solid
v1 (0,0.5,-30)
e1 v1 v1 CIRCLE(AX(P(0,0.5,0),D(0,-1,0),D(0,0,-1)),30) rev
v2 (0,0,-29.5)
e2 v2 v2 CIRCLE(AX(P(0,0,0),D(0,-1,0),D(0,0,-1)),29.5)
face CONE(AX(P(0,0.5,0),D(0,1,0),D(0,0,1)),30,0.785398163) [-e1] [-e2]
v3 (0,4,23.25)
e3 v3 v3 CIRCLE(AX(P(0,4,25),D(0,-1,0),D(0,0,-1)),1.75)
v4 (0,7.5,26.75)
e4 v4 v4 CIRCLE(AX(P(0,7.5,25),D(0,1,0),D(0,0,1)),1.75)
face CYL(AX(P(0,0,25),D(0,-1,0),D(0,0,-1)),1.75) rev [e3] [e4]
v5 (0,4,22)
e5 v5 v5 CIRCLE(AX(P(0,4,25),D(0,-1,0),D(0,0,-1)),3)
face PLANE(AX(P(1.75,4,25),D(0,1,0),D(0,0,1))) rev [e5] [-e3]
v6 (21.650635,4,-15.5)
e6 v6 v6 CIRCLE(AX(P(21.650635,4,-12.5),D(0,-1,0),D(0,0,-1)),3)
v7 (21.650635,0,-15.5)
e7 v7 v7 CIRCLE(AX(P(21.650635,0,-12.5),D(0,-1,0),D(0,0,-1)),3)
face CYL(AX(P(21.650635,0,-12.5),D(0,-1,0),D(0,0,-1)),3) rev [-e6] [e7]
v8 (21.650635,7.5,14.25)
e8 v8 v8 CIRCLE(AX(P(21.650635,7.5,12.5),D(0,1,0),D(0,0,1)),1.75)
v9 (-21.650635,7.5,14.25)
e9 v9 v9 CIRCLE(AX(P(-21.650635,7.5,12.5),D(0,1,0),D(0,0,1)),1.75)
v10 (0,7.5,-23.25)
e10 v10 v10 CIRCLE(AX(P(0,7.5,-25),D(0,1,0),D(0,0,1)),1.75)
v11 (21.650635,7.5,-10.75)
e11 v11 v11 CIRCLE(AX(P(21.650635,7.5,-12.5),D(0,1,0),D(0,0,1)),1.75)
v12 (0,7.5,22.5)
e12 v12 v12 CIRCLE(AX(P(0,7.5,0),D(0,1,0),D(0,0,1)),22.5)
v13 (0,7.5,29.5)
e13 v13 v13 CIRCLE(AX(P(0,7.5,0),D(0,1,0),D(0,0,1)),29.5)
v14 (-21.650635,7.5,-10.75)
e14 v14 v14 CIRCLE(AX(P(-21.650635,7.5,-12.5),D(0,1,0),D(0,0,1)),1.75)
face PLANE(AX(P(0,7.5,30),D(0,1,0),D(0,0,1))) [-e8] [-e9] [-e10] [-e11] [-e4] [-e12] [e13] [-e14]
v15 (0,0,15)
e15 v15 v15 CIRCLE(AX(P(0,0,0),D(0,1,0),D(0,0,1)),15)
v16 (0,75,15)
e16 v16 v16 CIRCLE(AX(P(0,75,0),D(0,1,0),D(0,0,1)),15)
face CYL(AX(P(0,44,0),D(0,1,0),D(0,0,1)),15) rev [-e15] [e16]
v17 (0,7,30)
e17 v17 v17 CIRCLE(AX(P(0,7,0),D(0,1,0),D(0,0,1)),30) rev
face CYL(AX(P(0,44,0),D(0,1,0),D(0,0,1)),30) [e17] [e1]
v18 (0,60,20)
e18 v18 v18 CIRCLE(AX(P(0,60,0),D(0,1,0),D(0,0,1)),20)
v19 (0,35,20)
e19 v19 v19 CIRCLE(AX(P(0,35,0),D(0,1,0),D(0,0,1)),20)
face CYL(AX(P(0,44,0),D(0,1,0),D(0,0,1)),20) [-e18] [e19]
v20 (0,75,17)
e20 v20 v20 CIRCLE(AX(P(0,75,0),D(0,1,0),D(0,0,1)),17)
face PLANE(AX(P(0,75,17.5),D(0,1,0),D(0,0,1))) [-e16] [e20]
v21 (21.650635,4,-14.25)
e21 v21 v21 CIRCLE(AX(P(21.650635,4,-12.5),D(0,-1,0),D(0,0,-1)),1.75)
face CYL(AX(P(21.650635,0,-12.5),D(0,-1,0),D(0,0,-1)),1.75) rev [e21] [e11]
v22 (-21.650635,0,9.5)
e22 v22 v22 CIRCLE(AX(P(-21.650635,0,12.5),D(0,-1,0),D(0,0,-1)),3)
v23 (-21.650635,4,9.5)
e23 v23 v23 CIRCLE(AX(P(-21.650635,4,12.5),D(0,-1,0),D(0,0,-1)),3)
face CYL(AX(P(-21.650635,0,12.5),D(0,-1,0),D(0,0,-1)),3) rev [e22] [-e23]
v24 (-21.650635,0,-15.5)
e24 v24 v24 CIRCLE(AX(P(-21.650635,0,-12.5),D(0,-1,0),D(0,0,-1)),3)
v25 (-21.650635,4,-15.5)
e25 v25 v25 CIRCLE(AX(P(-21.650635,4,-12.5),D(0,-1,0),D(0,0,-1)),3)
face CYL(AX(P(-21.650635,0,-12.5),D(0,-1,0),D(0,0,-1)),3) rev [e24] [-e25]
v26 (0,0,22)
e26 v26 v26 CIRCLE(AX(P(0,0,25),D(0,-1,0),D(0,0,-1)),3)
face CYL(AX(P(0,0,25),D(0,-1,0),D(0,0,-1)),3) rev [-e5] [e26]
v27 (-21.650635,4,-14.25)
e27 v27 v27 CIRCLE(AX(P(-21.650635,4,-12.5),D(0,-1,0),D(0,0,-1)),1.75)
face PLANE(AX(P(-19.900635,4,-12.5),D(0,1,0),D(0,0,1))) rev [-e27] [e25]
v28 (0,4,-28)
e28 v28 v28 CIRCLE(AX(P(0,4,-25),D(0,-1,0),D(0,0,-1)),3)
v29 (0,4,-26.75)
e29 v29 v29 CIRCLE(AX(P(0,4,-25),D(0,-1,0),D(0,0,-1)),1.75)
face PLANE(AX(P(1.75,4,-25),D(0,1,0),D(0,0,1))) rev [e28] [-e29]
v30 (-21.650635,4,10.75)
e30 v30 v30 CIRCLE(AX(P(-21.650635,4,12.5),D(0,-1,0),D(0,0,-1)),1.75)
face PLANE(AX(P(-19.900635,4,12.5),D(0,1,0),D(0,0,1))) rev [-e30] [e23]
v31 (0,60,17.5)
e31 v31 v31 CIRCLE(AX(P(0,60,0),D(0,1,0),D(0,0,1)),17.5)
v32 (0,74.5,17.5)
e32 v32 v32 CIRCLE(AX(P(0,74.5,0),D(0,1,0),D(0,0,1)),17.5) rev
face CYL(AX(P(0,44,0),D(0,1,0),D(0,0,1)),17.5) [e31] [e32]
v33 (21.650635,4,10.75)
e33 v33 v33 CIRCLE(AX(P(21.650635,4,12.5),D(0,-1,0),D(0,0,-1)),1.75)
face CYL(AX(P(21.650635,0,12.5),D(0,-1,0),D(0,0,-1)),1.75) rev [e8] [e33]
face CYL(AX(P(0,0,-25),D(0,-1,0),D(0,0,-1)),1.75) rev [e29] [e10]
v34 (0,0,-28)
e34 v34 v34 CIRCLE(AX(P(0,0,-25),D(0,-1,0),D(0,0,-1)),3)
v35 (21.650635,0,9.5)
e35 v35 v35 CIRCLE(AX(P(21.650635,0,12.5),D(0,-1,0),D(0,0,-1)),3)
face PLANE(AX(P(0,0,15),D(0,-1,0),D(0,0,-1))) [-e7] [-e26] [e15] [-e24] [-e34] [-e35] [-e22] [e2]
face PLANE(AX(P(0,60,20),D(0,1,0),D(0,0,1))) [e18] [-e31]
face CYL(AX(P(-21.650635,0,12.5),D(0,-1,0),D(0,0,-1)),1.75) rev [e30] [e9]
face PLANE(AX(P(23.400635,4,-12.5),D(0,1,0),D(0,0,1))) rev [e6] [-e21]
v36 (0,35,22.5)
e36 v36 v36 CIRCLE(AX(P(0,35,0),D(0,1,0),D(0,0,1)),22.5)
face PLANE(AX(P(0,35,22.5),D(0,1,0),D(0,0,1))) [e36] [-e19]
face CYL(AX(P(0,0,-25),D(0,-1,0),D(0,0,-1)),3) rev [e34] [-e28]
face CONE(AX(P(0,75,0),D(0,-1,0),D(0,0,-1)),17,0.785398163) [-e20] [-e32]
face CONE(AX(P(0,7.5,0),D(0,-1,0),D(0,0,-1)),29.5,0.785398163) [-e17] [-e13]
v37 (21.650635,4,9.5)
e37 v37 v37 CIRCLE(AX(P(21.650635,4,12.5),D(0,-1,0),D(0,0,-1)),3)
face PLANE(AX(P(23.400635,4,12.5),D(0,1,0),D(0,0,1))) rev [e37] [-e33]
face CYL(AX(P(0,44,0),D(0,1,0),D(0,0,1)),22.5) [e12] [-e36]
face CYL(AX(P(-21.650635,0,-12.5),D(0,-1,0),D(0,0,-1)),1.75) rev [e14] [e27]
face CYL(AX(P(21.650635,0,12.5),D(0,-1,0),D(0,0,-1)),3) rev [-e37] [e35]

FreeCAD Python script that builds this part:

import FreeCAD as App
import Part
import Sketcher
Q = App.Units.Quantity


def edges_at(feature, points):
    """Names of the edges that pass closest to the given points."""
    edges = feature.Shape.Edges
    near = lambda p: min(range(len(edges)), key=lambda i: edges[i].distToShape(Part.Vertex(*p))[0])
    return sorted({f"Edge{near(p) + 1}" for p in points})

doc = App.newDocument("Part")
body = doc.addObject("PartDesign::Body", "Body")

# Sketch on YZ plane
sketch1 = body.newObject("Sketcher::SketchObject", "Sketch")
sketch1.AttachmentSupport = (doc.getObject("YZ_Plane"), [""])
sketch1.MapMode = "FlatFace"
sketch1.addGeometry(Part.LineSegment(App.Vector(0, 15, 0), App.Vector(75, 15, 0)), False)
sketch1.addGeometry(Part.LineSegment(App.Vector(75, 15, 0), App.Vector(75, 17.5, 0)), False)
sketch1.addGeometry(Part.LineSegment(App.Vector(75, 17.5, 0), App.Vector(60, 17.5, 0)), False)
sketch1.addGeometry(Part.LineSegment(App.Vector(60, 17.5, 0), App.Vector(60, 20, 0)), False)
sketch1.addGeometry(Part.LineSegment(App.Vector(60, 20, 0), App.Vector(35, 20, 0)), False)
sketch1.addGeometry(Part.LineSegment(App.Vector(35, 20, 0), App.Vector(35, 22.5, 0)), False)
sketch1.addGeometry(Part.LineSegment(App.Vector(35, 22.5, 0), App.Vector(7.5, 22.5, 0)), False)
sketch1.addGeometry(Part.LineSegment(App.Vector(7.5, 22.5, 0), App.Vector(7.5, 30, 0)), False)
sketch1.addGeometry(Part.LineSegment(App.Vector(7.5, 30, 0), App.Vector(0, 30, 0)), False)
sketch1.addGeometry(Part.LineSegment(App.Vector(0, 30, 0), App.Vector(0, 15, 0)), False)
sketch1.addConstraint(Sketcher.Constraint("Coincident", 0, 2, 1, 1))
sketch1.addConstraint(Sketcher.Constraint("Coincident", 1, 2, 2, 1))
sketch1.addConstraint(Sketcher.Constraint("Coincident", 2, 2, 3, 1))
sketch1.addConstraint(Sketcher.Constraint("Coincident", 3, 2, 4, 1))
sketch1.addConstraint(Sketcher.Constraint("Coincident", 4, 2, 5, 1))
sketch1.addConstraint(Sketcher.Constraint("Coincident", 5, 2, 6, 1))
sketch1.addConstraint(Sketcher.Constraint("Coincident", 6, 2, 7, 1))
sketch1.addConstraint(Sketcher.Constraint("Coincident", 7, 2, 8, 1))
sketch1.addConstraint(Sketcher.Constraint("Coincident", 8, 2, 9, 1))
sketch1.addConstraint(Sketcher.Constraint("Coincident", 9, 2, 0, 1))
sketch1.addConstraint(Sketcher.Constraint("Horizontal", 0))
sketch1.addConstraint(Sketcher.Constraint("Vertical", 1))
sketch1.addConstraint(Sketcher.Constraint("Horizontal", 2))
sketch1.addConstraint(Sketcher.Constraint("Vertical", 3))
sketch1.addConstraint(Sketcher.Constraint("Horizontal", 4))
sketch1.addConstraint(Sketcher.Constraint("Vertical", 5))
sketch1.addConstraint(Sketcher.Constraint("Horizontal", 6))
sketch1.addConstraint(Sketcher.Constraint("Vertical", 7))
sketch1.addConstraint(Sketcher.Constraint("Horizontal", 8))
sketch1.addConstraint(Sketcher.Constraint("Vertical", 9))
sketch1.addConstraint(Sketcher.Constraint("PointOnObject", 8, 2, -2))
sketch1.addConstraint(Sketcher.Constraint("Equal", 1, 3))
sketch1.addConstraint(Sketcher.Constraint("Equal", 3, 5))
sketch1.addConstraint(Sketcher.Constraint("Equal", 8, 7))
sketch1.addConstraint(Sketcher.Constraint("Equal", 2, 9))
sketch1.addConstraint(Sketcher.Constraint("DistanceX", 0, 1, 0, 2, Q("75 mm")))
sketch1.addConstraint(Sketcher.Constraint("DistanceX", 2, 2, 2, 1, Q("15 mm")))
sketch1.addConstraint(Sketcher.Constraint("DistanceX", 4, 2, 4, 1, Q("25 mm")))
sketch1.addConstraint(Sketcher.Constraint("DistanceX", 6, 2, 6, 1, Q("27.5 mm")))
sketch1.addConstraint(Sketcher.Constraint("DistanceY", -1, 1, 0, 2, Q("15 mm")))
revolution = body.newObject("PartDesign::Revolution", "Revolution")
revolution.Profile = sketch1
revolution.ReferenceAxis = (sketch1, ["H_Axis"])
revolution.Angle = 360

# Sketch on XZ plane
sketch2 = body.newObject("Sketcher::SketchObject", "Sketch001")
sketch2.AttachmentSupport = (doc.getObject("XZ_Plane"), [""])
sketch2.MapMode = "FlatFace"
sketch2.addGeometry(Part.Circle(App.Vector(0, 25, 0), App.Vector(0, 0, 1), 1.8), False)
sketch2.addConstraint(Sketcher.Constraint("PointOnObject", 0, 3, -2))
sketch2.addConstraint(Sketcher.Constraint("Diameter", 0, Q("3.5 mm")))
sketch2.addConstraint(Sketcher.Constraint("DistanceY", -1, 1, 0, 3, Q("25 mm")))
doc.recompute()
hole = body.newObject("PartDesign::Hole", "Hole")
hole.Profile = sketch2
hole.ThreadType = "None"
hole.Diameter = 3.5
hole.DepthType = "ThroughAll"
hole.HoleCutType = "Counterbore"
hole.HoleCutDiameter = 6
hole.HoleCutDepth = 4
doc.recompute()

polarpattern = body.newObject("PartDesign::PolarPattern", "PolarPattern")
polarpattern.Originals = [hole]
polarpattern.Axis = (doc.getObject("Y_Axis"), [""])
polarpattern.Angle = 360
polarpattern.Occurrences = 6
body.Tip = polarpattern
doc.recompute()

chamfer = body.newObject("PartDesign::Chamfer", "Chamfer")
chamfer.Base = (polarpattern, edges_at(polarpattern, [(0, 7.5, -30), (0, 0, -30), (0, 75, -17.5)]))
chamfer.Size = 0.5

doc.recompute()
